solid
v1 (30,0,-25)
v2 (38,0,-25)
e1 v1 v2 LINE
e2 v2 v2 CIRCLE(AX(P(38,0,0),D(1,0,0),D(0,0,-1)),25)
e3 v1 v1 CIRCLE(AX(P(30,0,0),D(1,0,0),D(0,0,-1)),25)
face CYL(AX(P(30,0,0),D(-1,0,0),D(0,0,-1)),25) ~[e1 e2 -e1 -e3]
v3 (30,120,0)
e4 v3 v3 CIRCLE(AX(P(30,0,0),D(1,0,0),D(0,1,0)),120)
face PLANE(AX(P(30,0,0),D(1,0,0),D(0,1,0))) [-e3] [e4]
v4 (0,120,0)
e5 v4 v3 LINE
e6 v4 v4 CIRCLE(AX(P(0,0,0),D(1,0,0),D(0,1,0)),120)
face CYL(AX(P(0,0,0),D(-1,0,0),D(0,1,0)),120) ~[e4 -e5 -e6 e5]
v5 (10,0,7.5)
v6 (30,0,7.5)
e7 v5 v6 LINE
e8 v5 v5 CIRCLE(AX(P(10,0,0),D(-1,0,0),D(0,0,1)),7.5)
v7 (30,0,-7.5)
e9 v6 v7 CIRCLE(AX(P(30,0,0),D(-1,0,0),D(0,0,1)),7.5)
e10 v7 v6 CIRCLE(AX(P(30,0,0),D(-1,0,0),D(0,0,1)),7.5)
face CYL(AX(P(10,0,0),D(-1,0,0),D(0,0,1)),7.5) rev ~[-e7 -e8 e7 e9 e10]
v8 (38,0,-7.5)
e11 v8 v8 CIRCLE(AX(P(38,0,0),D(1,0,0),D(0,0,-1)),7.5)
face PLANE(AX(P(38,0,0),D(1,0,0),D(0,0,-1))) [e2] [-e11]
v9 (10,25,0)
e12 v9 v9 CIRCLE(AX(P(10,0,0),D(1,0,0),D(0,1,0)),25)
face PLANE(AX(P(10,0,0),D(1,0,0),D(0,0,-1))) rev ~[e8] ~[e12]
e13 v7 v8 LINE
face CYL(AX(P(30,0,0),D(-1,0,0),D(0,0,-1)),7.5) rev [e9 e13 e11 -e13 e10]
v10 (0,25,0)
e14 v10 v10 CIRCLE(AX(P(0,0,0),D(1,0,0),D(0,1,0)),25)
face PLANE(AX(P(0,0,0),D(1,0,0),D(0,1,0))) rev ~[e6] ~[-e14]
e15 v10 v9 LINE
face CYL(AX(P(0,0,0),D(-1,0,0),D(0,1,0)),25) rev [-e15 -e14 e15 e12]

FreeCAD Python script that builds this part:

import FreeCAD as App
import Part
import Sketcher

doc = App.newDocument("Part")
body = doc.addObject("PartDesign::Body", "Body")

# Sketch on YZ plane
sketch1 = body.newObject("Sketcher::SketchObject", "Sketch")
sketch1.AttachmentSupport = (doc.getObject("YZ_Plane"), [""])
sketch1.MapMode = "FlatFace"
sketch1.addGeometry(Part.Circle(App.Vector(0, 0, 0), App.Vector(0, 0, 1), 120), False)
sketch1.addGeometry(Part.Circle(App.Vector(0, 0, 0), App.Vector(0, 0, 1), 25), False)
sketch1.addConstraint(Sketcher.Constraint("Coincident", 0, 3, -1, 1))
sketch1.addConstraint(Sketcher.Constraint("Coincident", 1, 3, -1, 1))
sketch1.addConstraint(Sketcher.Constraint("Diameter", 0, 240.0))
sketch1.addConstraint(Sketcher.Constraint("Diameter", 1, 50.0))
pad1 = body.newObject("PartDesign::Pad", "Pad")
pad1.Profile = sketch1
pad1.Length = 30

# Sketch on YZ plane
sketch2 = body.newObject("Sketcher::SketchObject", "Sketch001")
sketch2.AttachmentSupport = (doc.getObject("YZ_Plane"), [""])
sketch2.MapMode = "FlatFace"
sketch2.AttachmentOffset = App.Placement(App.Vector(0, 0, 30), App.Rotation())
sketch2.addGeometry(Part.Circle(App.Vector(0, 0, 0), App.Vector(0, 0, 1), 25), False)
sketch2.addConstraint(Sketcher.Constraint("Coincident", 0, 3, -1, 1))
sketch2.addConstraint(Sketcher.Constraint("Diameter", 0, 50.0))
pad2 = body.newObject("PartDesign::Pad", "Pad001")
pad2.Profile = sketch2
pad2.Length = 20
pad2.Reversed = True

# Sketch on YZ plane
sketch3 = body.newObject("Sketcher::SketchObject", "Sketch002")
sketch3.AttachmentSupport = (doc.getObject("YZ_Plane"), [""])
sketch3.MapMode = "FlatFace"
sketch3.AttachmentOffset = App.Placement(App.Vector(0, 0, 10), App.Rotation())
sketch3.addGeometry(Part.Circle(App.Vector(0, 0, 0), App.Vector(0, 0, 1), 8), False)
sketch3.addConstraint(Sketcher.Constraint("Coincident", 0, 3, -1, 1))
sketch3.addConstraint(Sketcher.Constraint("Diameter", 0, 15.0))
pocket1 = body.newObject("PartDesign::Pocket", "Pocket")
pocket1.Profile = sketch3
pocket1.Length = 20
pocket1.Reversed = True

# Sketch on YZ plane
sketch4 = body.newObject("Sketcher::SketchObject", "Sketch003")
sketch4.AttachmentSupport = (doc.getObject("YZ_Plane"), [""])
sketch4.MapMode = "FlatFace"
sketch4.AttachmentOffset = App.Placement(App.Vector(0, 0, 30), App.Rotation())
sketch4.addGeometry(Part.Circle(App.Vector(0, 0, 0), App.Vector(0, 0, 1), 25), False)
sketch4.addGeometry(Part.Circle(App.Vector(0, 0, 0), App.Vector(0, 0, 1), 8), False)
sketch4.addConstraint(Sketcher.Constraint("Coincident", 0, 3, -1, 1))
sketch4.addConstraint(Sketcher.Constraint("Coincident", 1, 3, -1, 1))
sketch4.addConstraint(Sketcher.Constraint("Diameter", 0, 50.0))
sketch4.addConstraint(Sketcher.Constraint("Diameter", 1, 15.0))
pad3 = body.newObject("PartDesign::Pad", "Pad002")
pad3.Profile = sketch4
pad3.Length = 8

doc.recompute()
